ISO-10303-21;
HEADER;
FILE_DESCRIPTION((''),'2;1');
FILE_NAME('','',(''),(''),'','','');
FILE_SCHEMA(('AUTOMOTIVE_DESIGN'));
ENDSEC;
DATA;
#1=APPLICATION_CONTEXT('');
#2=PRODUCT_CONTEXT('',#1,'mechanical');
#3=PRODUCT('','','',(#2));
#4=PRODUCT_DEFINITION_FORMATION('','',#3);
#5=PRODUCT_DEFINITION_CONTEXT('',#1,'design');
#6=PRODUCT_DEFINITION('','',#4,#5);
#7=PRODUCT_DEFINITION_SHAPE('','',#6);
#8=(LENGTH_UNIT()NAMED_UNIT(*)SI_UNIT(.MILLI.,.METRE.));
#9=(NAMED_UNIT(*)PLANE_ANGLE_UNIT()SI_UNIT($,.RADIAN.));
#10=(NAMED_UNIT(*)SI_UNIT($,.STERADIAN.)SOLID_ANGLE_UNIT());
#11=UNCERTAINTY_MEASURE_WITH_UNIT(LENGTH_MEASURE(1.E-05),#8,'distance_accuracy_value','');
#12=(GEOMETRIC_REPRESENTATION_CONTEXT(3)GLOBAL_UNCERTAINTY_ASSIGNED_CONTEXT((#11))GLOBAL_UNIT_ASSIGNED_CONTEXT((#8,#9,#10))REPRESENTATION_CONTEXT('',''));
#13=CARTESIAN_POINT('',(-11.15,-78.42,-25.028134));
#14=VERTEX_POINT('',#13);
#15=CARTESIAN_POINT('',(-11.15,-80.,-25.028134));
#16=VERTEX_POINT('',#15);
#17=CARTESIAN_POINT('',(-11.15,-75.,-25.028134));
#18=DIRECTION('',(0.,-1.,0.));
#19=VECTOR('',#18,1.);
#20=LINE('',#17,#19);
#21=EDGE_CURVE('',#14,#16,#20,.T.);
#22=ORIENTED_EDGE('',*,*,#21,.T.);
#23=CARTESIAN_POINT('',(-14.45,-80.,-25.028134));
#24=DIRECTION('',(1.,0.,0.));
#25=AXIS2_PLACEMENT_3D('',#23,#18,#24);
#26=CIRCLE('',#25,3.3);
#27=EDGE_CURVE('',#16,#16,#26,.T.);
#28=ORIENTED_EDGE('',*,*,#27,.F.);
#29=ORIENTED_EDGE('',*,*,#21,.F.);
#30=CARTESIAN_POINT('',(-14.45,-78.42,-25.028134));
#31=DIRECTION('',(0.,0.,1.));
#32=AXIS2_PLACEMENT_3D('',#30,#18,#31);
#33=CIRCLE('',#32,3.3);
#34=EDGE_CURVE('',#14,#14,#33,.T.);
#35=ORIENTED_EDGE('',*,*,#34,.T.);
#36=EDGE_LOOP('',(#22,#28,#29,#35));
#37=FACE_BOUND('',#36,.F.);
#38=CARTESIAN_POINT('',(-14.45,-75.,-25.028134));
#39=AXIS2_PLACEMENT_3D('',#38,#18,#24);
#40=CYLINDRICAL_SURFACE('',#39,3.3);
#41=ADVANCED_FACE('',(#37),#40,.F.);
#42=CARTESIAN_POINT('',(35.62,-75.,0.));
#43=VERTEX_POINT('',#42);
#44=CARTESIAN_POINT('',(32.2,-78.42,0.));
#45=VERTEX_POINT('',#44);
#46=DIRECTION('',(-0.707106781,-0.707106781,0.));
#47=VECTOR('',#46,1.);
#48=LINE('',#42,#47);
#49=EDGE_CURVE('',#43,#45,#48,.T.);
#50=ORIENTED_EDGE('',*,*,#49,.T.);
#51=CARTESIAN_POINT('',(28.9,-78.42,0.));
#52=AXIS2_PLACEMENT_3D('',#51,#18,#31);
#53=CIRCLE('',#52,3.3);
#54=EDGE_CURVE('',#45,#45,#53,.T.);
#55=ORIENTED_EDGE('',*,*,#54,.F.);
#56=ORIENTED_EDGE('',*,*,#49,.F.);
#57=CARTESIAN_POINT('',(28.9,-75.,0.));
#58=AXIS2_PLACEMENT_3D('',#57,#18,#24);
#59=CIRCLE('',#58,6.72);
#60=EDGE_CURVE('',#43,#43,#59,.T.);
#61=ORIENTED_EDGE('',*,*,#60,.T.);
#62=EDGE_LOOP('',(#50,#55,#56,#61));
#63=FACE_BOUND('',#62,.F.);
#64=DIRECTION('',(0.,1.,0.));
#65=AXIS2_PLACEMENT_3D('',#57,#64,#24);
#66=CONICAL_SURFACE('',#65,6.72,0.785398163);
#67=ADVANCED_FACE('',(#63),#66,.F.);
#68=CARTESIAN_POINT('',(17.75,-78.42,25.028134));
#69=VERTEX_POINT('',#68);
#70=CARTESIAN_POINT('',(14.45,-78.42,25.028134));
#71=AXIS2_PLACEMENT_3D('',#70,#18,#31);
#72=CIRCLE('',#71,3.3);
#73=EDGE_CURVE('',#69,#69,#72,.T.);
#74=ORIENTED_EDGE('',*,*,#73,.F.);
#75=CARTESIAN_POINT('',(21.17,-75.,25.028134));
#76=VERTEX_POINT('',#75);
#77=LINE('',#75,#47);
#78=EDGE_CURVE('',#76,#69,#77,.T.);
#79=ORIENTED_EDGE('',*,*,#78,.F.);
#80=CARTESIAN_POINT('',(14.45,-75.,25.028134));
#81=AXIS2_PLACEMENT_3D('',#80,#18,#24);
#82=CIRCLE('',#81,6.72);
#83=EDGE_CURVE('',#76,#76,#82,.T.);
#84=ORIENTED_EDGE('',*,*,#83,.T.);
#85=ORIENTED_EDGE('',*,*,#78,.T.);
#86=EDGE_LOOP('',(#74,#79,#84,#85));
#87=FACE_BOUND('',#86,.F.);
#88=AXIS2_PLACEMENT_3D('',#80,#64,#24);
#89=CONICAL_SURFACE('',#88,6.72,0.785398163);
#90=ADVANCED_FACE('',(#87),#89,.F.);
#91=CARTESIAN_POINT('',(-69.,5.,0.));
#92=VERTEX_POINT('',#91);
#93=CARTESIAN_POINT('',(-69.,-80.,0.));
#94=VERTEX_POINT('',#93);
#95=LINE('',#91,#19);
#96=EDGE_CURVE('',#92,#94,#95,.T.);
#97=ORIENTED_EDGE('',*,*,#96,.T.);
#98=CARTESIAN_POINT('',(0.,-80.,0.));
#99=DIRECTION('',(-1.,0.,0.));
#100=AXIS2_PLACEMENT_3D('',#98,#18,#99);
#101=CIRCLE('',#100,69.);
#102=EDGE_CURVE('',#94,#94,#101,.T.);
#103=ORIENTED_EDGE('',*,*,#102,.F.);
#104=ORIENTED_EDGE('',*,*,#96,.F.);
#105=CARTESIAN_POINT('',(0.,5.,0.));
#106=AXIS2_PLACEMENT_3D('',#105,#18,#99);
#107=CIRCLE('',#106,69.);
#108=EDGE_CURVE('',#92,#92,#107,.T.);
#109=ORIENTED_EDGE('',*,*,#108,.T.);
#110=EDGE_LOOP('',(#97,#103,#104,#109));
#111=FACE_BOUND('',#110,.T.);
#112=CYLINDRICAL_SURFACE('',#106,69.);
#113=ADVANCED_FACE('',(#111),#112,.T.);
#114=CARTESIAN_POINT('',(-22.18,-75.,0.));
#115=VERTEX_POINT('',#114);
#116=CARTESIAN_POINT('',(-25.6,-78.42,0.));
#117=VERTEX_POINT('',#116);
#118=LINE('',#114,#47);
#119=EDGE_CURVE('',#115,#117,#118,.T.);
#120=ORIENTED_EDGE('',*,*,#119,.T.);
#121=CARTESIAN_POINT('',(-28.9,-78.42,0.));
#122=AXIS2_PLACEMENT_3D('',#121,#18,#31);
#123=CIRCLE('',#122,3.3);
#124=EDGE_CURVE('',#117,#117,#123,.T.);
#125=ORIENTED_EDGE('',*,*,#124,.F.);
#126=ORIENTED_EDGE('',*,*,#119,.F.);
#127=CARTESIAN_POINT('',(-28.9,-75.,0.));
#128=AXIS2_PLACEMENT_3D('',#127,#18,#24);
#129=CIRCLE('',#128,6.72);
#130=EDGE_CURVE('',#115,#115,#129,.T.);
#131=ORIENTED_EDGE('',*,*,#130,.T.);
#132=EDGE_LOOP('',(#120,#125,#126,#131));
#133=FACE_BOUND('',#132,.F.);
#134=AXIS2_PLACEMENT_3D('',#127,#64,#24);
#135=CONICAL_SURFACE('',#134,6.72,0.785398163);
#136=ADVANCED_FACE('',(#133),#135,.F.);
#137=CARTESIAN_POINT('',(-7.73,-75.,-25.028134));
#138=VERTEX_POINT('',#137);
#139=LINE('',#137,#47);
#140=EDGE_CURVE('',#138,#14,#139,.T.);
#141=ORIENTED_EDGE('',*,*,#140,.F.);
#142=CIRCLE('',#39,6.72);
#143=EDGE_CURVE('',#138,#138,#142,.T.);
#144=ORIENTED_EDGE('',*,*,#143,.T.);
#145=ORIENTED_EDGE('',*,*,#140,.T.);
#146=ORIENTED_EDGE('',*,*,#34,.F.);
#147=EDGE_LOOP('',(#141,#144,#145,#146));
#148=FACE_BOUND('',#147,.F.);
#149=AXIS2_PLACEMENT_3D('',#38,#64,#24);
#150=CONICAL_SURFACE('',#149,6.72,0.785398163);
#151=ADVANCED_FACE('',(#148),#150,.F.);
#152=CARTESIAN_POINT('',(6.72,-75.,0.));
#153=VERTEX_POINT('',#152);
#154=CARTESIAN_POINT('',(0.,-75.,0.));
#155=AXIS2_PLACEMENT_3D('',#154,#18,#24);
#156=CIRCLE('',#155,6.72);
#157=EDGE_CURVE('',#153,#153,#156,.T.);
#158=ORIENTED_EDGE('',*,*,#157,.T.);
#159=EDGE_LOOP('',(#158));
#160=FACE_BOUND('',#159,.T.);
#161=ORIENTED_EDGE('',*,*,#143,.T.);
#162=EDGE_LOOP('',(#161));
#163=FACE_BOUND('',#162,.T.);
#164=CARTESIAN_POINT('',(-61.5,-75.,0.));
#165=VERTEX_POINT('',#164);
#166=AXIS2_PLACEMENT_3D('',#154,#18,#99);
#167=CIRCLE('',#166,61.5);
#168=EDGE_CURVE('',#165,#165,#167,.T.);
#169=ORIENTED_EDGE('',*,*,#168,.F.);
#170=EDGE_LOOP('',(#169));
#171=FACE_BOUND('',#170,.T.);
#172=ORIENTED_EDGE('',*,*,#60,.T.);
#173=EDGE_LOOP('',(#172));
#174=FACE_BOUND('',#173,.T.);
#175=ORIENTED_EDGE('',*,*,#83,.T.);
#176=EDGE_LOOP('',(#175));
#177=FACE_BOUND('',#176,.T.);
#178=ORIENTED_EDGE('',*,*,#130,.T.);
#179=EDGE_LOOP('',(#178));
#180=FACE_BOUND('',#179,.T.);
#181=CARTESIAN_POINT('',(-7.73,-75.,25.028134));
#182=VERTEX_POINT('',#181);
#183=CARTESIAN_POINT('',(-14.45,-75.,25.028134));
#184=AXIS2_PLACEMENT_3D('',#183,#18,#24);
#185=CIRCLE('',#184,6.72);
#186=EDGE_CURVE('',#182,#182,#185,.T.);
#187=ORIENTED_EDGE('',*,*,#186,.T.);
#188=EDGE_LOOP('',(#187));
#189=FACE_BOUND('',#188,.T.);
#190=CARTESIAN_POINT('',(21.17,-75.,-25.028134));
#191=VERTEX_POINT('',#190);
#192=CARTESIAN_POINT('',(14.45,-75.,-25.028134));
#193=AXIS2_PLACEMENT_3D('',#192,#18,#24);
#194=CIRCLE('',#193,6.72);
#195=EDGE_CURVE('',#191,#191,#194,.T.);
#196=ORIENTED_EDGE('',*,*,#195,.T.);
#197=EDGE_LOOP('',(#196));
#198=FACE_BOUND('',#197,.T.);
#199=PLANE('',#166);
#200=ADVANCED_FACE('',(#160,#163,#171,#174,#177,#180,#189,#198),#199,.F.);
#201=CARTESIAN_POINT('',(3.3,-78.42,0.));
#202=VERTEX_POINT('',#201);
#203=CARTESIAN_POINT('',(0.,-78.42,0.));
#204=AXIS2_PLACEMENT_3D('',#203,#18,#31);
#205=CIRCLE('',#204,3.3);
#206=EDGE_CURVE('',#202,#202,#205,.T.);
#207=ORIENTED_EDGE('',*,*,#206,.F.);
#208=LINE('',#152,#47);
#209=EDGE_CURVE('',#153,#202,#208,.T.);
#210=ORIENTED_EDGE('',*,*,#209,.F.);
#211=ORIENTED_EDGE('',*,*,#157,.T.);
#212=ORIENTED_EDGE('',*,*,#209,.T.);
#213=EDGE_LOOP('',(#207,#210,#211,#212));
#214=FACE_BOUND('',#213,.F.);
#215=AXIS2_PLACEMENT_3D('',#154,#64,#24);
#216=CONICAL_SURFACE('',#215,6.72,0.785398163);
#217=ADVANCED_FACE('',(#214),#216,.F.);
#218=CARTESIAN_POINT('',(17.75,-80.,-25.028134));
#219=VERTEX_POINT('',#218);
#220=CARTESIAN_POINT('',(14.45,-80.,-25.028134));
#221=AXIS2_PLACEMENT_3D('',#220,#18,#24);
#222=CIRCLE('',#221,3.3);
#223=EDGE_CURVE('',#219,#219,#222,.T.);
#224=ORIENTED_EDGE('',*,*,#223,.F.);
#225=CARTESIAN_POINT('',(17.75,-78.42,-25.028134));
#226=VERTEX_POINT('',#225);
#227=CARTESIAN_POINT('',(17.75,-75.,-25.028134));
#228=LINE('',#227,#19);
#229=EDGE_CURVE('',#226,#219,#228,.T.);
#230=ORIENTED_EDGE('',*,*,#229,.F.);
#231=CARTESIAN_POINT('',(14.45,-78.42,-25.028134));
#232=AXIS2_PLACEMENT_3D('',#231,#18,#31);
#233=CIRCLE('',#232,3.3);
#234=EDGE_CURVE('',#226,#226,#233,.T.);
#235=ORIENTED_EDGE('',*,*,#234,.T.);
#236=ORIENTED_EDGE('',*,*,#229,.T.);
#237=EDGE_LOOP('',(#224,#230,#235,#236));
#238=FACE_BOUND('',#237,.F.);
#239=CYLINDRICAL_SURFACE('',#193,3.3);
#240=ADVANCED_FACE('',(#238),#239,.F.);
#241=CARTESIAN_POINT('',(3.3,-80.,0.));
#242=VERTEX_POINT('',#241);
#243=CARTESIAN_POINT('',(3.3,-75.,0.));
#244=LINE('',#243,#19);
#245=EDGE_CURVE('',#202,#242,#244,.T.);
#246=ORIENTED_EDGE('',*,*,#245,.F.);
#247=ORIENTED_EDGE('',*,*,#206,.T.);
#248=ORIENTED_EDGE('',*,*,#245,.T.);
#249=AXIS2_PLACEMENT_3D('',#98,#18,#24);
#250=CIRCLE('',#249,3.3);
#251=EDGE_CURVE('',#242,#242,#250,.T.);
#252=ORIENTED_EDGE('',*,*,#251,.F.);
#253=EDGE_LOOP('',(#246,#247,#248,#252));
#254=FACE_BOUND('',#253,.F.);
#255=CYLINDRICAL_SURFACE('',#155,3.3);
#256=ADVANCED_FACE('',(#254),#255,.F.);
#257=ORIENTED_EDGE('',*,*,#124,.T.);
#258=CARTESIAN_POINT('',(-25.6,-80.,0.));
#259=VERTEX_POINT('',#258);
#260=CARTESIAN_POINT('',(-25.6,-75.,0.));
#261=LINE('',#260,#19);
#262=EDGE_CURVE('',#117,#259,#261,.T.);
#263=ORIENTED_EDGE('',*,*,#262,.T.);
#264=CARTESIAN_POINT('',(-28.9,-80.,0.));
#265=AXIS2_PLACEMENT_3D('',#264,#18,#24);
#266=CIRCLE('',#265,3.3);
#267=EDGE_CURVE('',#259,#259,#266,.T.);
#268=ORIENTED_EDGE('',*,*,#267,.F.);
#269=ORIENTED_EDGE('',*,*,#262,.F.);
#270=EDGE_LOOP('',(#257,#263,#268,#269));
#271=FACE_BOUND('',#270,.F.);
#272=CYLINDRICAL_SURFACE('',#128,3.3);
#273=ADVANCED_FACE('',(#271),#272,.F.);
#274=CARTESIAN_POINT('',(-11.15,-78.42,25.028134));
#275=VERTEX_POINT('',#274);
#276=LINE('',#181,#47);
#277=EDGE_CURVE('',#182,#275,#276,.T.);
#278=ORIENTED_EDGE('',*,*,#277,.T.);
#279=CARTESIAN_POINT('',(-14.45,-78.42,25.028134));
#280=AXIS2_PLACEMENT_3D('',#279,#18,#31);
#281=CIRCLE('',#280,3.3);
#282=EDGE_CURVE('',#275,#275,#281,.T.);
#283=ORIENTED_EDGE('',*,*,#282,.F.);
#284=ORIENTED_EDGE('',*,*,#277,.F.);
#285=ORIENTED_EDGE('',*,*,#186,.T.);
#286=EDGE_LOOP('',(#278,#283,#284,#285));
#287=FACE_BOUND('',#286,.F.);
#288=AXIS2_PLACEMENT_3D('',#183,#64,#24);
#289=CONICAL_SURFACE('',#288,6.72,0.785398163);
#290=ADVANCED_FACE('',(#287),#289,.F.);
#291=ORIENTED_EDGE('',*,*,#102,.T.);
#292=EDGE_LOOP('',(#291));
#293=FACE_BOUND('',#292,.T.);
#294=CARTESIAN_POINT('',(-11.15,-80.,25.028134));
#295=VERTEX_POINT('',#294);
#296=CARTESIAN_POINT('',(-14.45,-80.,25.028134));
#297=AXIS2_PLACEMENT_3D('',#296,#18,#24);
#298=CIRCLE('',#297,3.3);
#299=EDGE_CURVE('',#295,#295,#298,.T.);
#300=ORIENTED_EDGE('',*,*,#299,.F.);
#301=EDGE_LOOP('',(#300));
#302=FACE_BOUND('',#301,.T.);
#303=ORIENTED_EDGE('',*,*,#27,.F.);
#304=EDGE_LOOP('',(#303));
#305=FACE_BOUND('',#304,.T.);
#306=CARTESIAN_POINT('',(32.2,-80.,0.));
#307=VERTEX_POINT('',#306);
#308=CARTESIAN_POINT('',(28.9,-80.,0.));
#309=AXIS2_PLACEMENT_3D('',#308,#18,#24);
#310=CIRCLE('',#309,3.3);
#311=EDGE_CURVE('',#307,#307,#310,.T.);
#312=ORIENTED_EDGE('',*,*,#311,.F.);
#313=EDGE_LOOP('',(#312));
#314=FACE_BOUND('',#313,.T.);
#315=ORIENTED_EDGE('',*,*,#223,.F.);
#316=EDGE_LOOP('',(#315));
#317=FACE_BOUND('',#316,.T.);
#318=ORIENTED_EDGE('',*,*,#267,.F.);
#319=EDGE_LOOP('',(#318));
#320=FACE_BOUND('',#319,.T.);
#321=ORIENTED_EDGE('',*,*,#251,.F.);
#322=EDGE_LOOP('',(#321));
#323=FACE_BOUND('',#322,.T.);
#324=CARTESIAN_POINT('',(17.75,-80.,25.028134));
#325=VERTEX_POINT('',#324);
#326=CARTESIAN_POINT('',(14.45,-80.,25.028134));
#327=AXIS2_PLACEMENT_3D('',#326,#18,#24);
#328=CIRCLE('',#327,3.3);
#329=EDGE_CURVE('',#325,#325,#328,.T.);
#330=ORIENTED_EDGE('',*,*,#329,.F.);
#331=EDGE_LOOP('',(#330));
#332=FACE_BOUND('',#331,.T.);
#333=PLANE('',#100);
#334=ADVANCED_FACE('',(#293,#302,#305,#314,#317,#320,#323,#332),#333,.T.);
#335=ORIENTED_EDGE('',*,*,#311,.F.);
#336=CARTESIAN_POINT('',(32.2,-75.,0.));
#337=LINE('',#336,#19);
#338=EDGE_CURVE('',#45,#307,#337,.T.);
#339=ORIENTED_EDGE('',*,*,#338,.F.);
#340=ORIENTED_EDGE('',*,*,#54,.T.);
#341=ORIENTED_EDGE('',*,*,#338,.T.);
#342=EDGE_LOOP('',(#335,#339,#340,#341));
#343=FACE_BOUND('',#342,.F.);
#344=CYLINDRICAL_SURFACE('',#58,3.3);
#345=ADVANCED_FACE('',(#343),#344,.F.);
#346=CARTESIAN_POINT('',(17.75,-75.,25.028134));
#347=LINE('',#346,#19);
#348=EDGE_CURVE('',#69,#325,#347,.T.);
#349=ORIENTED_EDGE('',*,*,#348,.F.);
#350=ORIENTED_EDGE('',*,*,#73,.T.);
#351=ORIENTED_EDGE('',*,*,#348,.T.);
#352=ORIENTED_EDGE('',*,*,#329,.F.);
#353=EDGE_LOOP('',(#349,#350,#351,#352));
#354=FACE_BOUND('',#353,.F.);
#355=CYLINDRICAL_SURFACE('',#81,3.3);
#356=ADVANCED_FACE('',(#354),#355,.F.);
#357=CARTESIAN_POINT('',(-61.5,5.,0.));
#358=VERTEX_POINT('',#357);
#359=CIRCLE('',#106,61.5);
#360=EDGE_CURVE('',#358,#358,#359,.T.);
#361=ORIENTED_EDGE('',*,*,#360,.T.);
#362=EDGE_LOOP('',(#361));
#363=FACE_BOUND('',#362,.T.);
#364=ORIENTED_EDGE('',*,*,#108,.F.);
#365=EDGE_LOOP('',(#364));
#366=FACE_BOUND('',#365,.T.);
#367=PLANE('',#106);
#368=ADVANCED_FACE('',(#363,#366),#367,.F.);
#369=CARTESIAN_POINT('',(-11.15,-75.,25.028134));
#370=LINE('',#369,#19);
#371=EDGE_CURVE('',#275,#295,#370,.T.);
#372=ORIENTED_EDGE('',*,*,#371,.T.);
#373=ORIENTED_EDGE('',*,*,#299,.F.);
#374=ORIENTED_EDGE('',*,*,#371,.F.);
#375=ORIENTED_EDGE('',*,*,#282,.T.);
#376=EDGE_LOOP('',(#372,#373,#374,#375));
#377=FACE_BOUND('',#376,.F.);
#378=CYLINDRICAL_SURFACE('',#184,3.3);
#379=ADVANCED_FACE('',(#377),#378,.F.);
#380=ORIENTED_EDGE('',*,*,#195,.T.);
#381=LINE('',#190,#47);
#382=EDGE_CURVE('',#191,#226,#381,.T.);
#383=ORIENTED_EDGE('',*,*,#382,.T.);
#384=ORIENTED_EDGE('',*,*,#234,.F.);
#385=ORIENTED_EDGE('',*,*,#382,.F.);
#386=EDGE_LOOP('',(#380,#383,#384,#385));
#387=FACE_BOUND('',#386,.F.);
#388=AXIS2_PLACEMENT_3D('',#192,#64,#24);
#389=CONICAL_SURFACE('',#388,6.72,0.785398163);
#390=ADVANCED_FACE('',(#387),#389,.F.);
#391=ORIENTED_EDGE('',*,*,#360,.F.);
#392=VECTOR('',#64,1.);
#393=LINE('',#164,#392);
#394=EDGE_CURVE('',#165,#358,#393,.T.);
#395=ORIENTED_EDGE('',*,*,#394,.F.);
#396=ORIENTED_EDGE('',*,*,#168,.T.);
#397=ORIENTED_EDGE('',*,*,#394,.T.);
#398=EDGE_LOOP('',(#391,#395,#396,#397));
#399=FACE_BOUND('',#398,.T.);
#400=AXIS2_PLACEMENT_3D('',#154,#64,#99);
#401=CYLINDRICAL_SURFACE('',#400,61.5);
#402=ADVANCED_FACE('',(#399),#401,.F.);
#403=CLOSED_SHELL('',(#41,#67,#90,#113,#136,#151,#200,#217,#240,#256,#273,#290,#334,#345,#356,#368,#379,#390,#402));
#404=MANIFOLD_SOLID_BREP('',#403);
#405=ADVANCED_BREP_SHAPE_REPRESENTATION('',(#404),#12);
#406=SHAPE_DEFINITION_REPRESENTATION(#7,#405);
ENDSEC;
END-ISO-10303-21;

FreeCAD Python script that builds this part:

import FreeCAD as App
import Part
import Sketcher

doc = App.newDocument("Part")
body = doc.addObject("PartDesign::Body", "Body")

# Sketch on XY plane
sketch1 = doc.addObject("Sketcher::SketchObject", "Sketch")
body.addObject(sketch1)
sketch1.AttachmentSupport = (doc.XY_Plane, [""])
sketch1.MapMode = "FlatFace"
sketch1.addGeometry(Part.LineSegment(App.Vector(-69, 5, 0), App.Vector(-69, -80, 0)), False)
sketch1.addGeometry(Part.LineSegment(App.Vector(-69, -80, 0), App.Vector(0, -80, 0)), False)
sketch1.addGeometry(Part.LineSegment(App.Vector(0, -80, 0), App.Vector(0, -75, 0)), False)
sketch1.addGeometry(Part.LineSegment(App.Vector(0, -75, 0), App.Vector(-61.5, -75, 0)), False)
sketch1.addGeometry(Part.LineSegment(App.Vector(-61.5, -75, 0), App.Vector(-61.5, 5, 0)), False)
sketch1.addGeometry(Part.LineSegment(App.Vector(-61.5, 5, 0), App.Vector(-69, 5, 0)), False)
sketch1.addConstraint(Sketcher.Constraint("Coincident", 0, 2, 1, 1))
sketch1.addConstraint(Sketcher.Constraint("Coincident", 1, 2, 2, 1))
sketch1.addConstraint(Sketcher.Constraint("Coincident", 2, 2, 3, 1))
sketch1.addConstraint(Sketcher.Constraint("Coincident", 3, 2, 4, 1))
sketch1.addConstraint(Sketcher.Constraint("Coincident", 4, 2, 5, 1))
sketch1.addConstraint(Sketcher.Constraint("Coincident", 5, 2, 0, 1))
sketch1.addConstraint(Sketcher.Constraint("Vertical", 0))
sketch1.addConstraint(Sketcher.Constraint("Horizontal", 1))
sketch1.addConstraint(Sketcher.Constraint("Vertical", 2))
sketch1.addConstraint(Sketcher.Constraint("Horizontal", 3))
sketch1.addConstraint(Sketcher.Constraint("Vertical", 4))
sketch1.addConstraint(Sketcher.Constraint("Horizontal", 5))
sketch1.addConstraint(Sketcher.Constraint("PointOnObject", 1, 2, -2))
sketch1.addConstraint(Sketcher.Constraint("DistanceX", 1, 1, 1, 2, 69.0))
sketch1.addConstraint(Sketcher.Constraint("DistanceY", 0, 2, 0, 1, 85.0))
sketch1.addConstraint(Sketcher.Constraint("DistanceY", 2, 1, 2, 2, 5.0))
sketch1.addConstraint(Sketcher.Constraint("DistanceX", 3, 2, 3, 1, 61.5))
sketch1.addConstraint(Sketcher.Constraint("DistanceY", 0, 2, -1, 1, 80.0))
revolution = doc.addObject("PartDesign::Revolution", "Revolution")
body.addObject(revolution)
revolution.Profile = sketch1
revolution.ReferenceAxis = (sketch1, ["V_Axis"])
revolution.Angle = 360

# Sketch on XZ plane
sketch2 = doc.addObject("Sketcher::SketchObject", "Sketch001")
body.addObject(sketch2)
sketch2.AttachmentSupport = (doc.XZ_Plane, [""])
sketch2.MapMode = "FlatFace"
sketch2.AttachmentOffset = App.Placement(App.Vector(0, 0, 75), App.Rotation())
sketch2.addGeometry(Part.Circle(App.Vector(-14.45, 25.028134, 0), App.Vector(0, 0, 1), 3.3), False)
sketch2.addGeometry(Part.Circle(App.Vector(0, 0, 0), App.Vector(0, 0, 1), 3.3), False)
sketch2.addGeometry(Part.Circle(App.Vector(-28.9, 0, 0), App.Vector(0, 0, 1), 3.3), False)
sketch2.addGeometry(Part.Circle(App.Vector(-14.45, -25.028134, 0), App.Vector(0, 0, 1), 3.3), False)
sketch2.addGeometry(Part.Circle(App.Vector(14.45, -25.028134, 0), App.Vector(0, 0, 1), 3.3), False)
sketch2.addGeometry(Part.Circle(App.Vector(28.9, 0, 0), App.Vector(0, 0, 1), 3.3), False)
sketch2.addGeometry(Part.Circle(App.Vector(14.45, 25.028134, 0), App.Vector(0, 0, 1), 3.3), False)
sketch2.addConstraint(Sketcher.Constraint("Coincident", 1, 3, -1, 1))
sketch2.addConstraint(Sketcher.Constraint("Equal", 0, 1))
sketch2.addConstraint(Sketcher.Constraint("Equal", 1, 2))
sketch2.addConstraint(Sketcher.Constraint("Equal", 2, 3))
sketch2.addConstraint(Sketcher.Constraint("Equal", 3, 4))
sketch2.addConstraint(Sketcher.Constraint("Equal", 4, 5))
sketch2.addConstraint(Sketcher.Constraint("Equal", 5, 6))
sketch2.addConstraint(Sketcher.Constraint("Symmetric", 0, 3, 4, 3, -1, 1))
sketch2.addConstraint(Sketcher.Constraint("Symmetric", 2, 3, 5, 3, -1, 1))
sketch2.addConstraint(Sketcher.Constraint("Symmetric", 3, 3, 6, 3, -1, 1))
sketch2.addConstraint(Sketcher.Constraint("Symmetric", 3, 3, 4, 3, -2))
sketch2.addConstraint(Sketcher.Constraint("PointOnObject", 2, 3, -1))
sketch2.addConstraint(Sketcher.Constraint("Diameter", 0, 6.6))
sketch2.addConstraint(Sketcher.Constraint("DistanceX", 2, 3, -1, 1, 28.9))
sketch2.addConstraint(Sketcher.Constraint("DistanceX", 3, 3, 4, 3, 28.9))
sketch2.addConstraint(Sketcher.Constraint("DistanceY", 3, 3, 0, 3, 50.056268))
doc.recompute()
hole = doc.addObject("PartDesign::Hole", "Hole")
body.addObject(hole)
hole.Profile = sketch2
hole.ThreadType = "None"
hole.Diameter = 6.6
hole.DepthType = "ThroughAll"
hole.HoleCutType = "Countersink"
hole.HoleCutDiameter = 13.44
hole.HoleCutCountersinkAngle = 90
hole.Reversed = True

doc.recompute()
